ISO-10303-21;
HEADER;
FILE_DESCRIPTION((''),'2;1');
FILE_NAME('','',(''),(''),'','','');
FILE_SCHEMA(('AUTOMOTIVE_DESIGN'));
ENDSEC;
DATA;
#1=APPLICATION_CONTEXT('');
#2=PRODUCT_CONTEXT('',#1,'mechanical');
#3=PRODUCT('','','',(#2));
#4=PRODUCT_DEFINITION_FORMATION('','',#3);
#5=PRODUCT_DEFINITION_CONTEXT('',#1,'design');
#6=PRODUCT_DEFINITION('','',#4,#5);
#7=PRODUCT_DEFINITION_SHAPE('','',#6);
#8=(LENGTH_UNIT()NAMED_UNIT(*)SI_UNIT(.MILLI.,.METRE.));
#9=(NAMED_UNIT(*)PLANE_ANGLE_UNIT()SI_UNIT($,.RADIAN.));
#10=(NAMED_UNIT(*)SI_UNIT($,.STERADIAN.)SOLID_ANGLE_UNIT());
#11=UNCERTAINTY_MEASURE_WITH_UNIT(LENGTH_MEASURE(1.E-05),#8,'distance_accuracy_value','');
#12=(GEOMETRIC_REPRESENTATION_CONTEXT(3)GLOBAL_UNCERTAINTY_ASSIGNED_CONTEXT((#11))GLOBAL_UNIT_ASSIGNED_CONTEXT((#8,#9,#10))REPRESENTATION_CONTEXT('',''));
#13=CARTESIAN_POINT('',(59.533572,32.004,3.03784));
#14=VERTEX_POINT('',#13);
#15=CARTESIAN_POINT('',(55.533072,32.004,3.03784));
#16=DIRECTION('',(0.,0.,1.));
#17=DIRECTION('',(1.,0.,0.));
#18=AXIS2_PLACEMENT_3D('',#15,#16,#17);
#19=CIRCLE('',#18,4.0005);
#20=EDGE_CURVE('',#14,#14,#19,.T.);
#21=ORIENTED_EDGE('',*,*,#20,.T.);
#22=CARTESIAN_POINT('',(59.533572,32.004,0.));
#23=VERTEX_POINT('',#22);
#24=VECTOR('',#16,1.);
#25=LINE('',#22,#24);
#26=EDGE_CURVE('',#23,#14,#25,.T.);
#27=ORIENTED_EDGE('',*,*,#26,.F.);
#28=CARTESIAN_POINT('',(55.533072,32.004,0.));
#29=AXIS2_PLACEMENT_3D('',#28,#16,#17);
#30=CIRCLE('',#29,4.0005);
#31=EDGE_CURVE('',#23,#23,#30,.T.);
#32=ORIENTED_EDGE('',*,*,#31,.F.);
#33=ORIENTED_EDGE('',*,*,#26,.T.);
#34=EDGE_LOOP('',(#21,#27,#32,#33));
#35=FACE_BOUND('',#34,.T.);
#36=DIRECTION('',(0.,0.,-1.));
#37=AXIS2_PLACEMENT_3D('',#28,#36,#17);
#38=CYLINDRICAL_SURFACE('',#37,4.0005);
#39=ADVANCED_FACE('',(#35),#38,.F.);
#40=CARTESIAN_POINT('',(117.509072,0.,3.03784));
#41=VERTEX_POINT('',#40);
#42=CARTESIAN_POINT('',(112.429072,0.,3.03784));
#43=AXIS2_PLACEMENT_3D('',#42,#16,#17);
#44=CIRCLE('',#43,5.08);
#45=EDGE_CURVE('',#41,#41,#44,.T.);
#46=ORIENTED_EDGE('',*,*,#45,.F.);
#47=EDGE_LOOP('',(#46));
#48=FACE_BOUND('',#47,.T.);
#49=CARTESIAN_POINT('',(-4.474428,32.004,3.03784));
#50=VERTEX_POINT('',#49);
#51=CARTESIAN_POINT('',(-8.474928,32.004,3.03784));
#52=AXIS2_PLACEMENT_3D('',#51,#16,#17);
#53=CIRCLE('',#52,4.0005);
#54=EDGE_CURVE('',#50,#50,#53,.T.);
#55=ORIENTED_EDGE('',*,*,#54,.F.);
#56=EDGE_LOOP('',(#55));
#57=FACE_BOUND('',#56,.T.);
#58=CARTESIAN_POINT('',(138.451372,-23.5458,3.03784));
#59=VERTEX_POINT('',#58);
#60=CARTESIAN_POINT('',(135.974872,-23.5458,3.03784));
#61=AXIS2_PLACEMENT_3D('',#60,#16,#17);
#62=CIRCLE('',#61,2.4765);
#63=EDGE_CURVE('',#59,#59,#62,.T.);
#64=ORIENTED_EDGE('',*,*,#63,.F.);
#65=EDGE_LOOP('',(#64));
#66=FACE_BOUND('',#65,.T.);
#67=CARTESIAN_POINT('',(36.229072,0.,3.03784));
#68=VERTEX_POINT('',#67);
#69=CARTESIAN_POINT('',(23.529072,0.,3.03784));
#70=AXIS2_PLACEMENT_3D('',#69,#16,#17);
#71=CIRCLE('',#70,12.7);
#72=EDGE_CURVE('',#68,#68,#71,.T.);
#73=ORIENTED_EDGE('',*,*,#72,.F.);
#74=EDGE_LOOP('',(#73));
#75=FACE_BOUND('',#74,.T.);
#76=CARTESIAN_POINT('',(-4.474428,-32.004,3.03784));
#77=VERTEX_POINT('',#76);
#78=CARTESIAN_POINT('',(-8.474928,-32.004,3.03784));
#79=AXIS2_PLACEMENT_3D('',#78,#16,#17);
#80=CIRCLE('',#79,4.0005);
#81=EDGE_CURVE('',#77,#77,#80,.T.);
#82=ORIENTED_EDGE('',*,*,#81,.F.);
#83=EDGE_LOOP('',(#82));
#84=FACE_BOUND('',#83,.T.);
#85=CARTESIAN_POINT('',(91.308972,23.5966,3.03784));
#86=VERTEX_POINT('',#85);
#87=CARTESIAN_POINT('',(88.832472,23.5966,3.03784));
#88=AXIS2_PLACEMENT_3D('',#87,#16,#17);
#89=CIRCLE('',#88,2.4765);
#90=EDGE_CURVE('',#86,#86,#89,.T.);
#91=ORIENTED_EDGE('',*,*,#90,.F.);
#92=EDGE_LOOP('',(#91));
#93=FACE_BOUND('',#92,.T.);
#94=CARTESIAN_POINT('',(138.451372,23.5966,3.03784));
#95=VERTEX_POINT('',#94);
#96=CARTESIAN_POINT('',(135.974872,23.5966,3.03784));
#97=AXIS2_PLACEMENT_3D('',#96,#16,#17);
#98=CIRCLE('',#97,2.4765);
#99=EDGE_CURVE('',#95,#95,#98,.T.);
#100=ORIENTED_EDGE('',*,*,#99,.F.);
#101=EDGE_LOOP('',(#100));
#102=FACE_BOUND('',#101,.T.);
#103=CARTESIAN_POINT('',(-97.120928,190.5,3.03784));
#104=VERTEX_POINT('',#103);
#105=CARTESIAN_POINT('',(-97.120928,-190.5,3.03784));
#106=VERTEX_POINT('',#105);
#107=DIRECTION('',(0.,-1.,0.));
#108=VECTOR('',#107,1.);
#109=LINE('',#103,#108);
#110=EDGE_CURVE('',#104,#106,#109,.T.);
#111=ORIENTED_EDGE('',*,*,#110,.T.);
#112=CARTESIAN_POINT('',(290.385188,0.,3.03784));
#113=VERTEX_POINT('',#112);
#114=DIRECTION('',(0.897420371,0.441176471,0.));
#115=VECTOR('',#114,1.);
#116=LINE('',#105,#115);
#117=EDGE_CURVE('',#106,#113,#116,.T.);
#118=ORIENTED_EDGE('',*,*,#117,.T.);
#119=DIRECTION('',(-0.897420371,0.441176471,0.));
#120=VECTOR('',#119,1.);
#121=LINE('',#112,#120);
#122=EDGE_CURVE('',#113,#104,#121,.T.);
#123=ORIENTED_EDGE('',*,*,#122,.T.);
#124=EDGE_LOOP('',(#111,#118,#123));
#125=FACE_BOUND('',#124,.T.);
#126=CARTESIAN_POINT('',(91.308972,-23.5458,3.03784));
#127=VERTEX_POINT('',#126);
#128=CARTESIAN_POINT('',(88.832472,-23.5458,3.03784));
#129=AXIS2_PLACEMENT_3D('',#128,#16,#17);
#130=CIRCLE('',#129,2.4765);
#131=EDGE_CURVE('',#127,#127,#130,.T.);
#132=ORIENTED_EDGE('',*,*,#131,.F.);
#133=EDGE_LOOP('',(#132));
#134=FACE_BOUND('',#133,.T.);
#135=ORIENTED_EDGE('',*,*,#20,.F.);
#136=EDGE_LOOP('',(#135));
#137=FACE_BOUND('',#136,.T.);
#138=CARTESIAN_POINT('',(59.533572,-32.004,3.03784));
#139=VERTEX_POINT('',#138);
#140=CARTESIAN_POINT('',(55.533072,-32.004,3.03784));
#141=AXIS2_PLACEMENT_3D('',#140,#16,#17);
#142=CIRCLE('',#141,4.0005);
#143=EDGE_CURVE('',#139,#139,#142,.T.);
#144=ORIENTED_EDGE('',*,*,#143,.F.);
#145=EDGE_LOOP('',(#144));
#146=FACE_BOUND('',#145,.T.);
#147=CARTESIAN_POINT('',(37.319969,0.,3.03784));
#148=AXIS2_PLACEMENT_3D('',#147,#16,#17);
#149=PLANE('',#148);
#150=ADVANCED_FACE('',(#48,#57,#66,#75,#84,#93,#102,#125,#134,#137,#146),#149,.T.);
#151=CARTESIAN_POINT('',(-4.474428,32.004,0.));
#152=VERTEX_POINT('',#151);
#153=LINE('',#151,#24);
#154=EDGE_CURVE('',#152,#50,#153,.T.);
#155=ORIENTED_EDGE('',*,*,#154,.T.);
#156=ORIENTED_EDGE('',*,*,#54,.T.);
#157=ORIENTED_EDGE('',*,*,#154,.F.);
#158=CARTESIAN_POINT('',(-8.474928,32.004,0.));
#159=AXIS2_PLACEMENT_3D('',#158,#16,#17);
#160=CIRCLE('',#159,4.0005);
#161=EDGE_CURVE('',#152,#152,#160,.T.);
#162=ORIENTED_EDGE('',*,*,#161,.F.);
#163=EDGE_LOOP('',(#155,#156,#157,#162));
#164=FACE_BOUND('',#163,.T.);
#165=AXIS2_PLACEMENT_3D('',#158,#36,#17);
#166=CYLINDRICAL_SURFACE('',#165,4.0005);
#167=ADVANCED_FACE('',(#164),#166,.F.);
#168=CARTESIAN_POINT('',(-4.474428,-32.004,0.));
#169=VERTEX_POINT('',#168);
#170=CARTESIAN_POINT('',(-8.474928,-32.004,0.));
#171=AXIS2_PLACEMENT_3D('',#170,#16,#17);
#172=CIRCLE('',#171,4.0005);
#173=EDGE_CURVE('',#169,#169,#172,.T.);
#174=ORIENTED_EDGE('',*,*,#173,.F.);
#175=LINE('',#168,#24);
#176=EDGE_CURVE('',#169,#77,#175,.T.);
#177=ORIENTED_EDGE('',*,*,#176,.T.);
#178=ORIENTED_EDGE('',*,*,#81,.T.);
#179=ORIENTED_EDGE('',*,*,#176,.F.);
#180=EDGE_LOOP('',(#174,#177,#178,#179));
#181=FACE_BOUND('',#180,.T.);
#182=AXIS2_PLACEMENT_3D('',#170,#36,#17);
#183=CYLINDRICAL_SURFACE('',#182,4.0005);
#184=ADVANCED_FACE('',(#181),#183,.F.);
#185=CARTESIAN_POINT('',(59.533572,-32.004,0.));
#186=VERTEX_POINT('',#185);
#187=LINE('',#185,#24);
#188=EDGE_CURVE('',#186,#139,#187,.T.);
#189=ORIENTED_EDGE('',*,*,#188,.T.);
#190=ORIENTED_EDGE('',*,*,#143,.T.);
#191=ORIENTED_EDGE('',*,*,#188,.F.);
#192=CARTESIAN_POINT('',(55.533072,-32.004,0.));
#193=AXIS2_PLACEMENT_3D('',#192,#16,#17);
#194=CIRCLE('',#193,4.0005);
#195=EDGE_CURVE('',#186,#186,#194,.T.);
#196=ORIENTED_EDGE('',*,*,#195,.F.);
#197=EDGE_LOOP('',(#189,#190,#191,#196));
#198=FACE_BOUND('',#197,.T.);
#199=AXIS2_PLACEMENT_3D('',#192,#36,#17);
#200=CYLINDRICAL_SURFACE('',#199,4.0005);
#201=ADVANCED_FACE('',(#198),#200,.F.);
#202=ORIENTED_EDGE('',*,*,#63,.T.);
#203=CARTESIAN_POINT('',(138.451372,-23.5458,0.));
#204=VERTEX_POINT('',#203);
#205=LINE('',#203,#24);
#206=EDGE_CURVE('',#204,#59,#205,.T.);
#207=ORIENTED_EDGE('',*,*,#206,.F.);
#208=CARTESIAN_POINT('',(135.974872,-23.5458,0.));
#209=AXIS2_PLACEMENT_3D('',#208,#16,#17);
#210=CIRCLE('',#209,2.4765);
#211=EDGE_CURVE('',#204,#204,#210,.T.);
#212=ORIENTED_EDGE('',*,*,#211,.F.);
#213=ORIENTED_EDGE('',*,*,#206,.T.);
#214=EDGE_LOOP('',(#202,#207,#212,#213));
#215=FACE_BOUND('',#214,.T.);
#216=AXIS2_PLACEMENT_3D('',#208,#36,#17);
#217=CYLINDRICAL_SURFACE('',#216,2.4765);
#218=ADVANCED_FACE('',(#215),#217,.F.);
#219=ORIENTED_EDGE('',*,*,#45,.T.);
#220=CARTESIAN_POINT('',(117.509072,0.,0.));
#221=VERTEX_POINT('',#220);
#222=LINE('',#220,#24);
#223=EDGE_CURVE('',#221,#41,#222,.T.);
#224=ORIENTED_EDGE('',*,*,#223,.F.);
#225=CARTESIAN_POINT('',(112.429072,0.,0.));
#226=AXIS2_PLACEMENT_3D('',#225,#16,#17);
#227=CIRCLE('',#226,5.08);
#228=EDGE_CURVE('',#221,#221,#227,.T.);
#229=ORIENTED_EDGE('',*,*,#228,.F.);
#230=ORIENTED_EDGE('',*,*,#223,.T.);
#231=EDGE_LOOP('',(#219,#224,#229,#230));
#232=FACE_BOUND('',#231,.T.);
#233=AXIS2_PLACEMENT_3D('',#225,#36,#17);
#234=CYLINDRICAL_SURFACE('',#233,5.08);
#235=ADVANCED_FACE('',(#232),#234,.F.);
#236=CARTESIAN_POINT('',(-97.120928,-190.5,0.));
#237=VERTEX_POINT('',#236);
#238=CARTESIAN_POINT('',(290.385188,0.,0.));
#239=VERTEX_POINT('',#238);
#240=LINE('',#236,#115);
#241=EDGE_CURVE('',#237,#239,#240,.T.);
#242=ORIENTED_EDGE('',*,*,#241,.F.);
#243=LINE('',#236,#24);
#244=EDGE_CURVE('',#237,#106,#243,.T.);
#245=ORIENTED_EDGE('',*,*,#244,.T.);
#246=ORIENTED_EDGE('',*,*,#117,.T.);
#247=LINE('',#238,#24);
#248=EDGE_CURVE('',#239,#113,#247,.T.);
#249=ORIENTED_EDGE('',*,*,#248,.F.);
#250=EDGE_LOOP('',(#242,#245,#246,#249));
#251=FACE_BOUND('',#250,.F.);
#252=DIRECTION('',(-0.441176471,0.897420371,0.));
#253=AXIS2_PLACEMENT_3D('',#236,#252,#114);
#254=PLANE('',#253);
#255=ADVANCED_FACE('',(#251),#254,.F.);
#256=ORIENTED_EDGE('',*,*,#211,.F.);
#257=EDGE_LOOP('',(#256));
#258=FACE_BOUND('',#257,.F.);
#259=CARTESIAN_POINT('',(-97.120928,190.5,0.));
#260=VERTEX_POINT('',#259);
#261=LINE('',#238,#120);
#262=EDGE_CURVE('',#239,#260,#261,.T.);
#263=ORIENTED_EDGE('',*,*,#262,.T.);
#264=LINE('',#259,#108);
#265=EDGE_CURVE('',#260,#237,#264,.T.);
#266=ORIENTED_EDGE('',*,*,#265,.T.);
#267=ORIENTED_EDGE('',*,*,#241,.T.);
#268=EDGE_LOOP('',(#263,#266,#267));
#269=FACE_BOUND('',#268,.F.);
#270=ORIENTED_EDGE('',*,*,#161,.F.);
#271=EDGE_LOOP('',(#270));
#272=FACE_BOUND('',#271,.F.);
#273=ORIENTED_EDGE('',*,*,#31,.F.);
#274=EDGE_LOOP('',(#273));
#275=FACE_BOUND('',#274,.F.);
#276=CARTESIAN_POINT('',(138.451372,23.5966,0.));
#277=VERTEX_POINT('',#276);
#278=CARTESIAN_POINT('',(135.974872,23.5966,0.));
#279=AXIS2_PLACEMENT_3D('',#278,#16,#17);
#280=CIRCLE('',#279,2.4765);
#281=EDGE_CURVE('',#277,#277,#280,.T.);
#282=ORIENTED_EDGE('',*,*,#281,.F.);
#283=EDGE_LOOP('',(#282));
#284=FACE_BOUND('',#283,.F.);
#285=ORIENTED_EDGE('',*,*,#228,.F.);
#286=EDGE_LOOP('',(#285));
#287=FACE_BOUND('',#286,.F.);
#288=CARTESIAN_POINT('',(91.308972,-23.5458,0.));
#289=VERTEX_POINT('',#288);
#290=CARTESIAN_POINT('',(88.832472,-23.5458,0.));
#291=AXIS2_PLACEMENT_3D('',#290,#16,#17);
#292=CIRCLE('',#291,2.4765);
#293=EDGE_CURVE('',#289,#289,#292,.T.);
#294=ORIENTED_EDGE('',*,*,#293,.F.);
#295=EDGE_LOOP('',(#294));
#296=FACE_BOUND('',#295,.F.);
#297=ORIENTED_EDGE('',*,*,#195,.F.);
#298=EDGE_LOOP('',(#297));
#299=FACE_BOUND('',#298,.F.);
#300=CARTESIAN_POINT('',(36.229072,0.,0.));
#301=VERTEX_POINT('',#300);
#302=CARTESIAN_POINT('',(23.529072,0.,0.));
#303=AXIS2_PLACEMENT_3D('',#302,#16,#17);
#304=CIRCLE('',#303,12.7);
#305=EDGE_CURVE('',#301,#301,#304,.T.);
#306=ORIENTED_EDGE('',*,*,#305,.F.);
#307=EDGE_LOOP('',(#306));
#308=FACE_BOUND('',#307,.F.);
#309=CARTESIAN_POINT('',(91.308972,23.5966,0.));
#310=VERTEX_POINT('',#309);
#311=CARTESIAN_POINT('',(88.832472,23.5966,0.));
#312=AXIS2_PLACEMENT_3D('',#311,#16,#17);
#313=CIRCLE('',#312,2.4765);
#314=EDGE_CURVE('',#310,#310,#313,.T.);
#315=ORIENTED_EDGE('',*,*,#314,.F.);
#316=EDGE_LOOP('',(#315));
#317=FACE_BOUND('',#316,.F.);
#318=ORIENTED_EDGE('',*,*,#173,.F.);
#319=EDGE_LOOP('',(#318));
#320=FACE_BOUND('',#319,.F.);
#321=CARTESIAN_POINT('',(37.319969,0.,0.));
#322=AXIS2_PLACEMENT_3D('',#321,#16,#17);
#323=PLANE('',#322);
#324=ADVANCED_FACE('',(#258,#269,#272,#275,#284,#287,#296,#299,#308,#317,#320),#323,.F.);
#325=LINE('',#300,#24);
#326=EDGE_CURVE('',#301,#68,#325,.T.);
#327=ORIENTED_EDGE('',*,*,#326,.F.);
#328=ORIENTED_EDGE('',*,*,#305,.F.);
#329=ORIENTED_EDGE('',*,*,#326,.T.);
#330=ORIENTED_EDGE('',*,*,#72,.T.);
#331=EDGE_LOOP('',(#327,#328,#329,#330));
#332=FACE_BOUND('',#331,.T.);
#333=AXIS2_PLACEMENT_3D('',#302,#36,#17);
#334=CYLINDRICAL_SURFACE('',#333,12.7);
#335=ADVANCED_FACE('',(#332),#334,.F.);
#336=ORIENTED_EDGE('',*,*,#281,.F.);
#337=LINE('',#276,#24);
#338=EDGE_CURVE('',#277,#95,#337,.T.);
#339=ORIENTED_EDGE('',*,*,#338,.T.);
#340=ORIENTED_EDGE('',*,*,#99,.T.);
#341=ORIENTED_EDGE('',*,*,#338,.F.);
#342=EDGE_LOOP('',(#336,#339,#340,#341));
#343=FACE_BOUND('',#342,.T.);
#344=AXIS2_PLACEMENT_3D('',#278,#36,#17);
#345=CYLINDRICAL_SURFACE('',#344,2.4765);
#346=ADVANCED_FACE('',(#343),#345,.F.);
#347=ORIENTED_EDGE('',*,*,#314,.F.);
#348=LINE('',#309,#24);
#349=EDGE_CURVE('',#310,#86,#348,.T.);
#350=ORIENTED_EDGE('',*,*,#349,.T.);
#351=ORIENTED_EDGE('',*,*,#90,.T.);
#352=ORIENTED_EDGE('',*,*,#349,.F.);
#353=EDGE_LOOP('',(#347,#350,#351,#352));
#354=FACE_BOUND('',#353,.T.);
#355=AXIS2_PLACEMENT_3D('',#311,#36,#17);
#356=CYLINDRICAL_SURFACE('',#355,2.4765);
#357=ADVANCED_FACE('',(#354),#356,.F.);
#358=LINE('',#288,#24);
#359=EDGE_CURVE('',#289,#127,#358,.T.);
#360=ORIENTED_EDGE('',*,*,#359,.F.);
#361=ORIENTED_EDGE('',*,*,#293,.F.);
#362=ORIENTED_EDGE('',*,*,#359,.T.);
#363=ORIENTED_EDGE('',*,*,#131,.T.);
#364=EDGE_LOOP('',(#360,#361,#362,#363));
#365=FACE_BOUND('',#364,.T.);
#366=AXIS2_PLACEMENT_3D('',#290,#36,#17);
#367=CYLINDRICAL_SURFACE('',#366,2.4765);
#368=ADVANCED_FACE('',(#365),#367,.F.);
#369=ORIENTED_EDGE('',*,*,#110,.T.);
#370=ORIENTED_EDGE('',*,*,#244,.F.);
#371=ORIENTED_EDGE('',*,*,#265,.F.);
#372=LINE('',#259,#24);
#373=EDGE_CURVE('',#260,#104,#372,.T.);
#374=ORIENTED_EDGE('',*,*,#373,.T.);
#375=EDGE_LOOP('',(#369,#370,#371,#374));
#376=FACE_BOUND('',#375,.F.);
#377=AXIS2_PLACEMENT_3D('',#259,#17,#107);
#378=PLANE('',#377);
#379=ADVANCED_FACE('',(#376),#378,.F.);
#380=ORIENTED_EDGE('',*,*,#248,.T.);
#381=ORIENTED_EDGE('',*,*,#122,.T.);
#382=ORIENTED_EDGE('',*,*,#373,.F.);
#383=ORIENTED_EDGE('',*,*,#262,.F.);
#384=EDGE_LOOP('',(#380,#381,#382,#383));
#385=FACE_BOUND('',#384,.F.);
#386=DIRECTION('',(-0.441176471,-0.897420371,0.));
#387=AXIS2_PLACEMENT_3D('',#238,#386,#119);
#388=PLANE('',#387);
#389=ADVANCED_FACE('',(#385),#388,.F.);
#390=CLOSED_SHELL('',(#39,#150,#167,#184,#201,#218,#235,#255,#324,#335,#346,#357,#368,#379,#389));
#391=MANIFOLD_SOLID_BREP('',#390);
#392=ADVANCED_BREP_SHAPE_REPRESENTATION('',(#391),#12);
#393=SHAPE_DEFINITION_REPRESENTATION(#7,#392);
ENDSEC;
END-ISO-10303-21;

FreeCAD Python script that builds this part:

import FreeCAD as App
import Part
import Sketcher
Q = App.Units.Quantity


def add_polygon(sketch, points):
    """Adds a closed chain of lines whose ends are joined by coincident constraints."""
    first, n = sketch.GeometryCount, len(points)
    for a, b in zip(points, points[1:] + points[:1]):
        sketch.addGeometry(Part.LineSegment(App.Vector(*a, 0), App.Vector(*b, 0)), False)
    for i in range(n):
        sketch.addConstraint(Sketcher.Constraint("Coincident", first + i, 2, first + (i + 1) % n, 1))

doc = App.newDocument("Part")
params = doc.addObject("Spreadsheet::Sheet", "Params")
for row, (alias, value) in enumerate([
    ("sketch1_diameter", "1 in"),
    ("sketch1_diameter2", "0.4 in"),
    ("sketch1_height", "15 in"),
    ("sketch1_length", "17 in"),
    ("sketch1_diameter3", "0.315 in"),
    ("pad1_length", "0.1196 in"),
], start=1):
    params.set(f"A{row}", alias)
    params.set(f"B{row}", "=" + value)
    params.setAlias(f"B{row}", alias)

body = doc.addObject("PartDesign::Body", "Body")

# Sketch on XY plane
sketch1 = body.newObject("Sketcher::SketchObject", "Sketch")
sketch1.AttachmentSupport = (doc.getObject("XY_Plane"), [""])
sketch1.MapMode = "FlatFace"
add_polygon(sketch1, [(-97.120928, -190.5), (290.385188, 0), (-97.120928, 190.5)])  # lines 0-2
sketch1.addGeometry(Part.Circle(App.Vector(-8.474928, -32.004, 0), App.Vector(0, 0, 1), 4.0005), False)  # 3
sketch1.addGeometry(Part.Circle(App.Vector(55.533072, -32.004, 0), App.Vector(0, 0, 1), 4.0005), False)  # 4
sketch1.addGeometry(Part.Circle(App.Vector(88.832472, -23.5458, 0), App.Vector(0, 0, 1), 2.4765), False)  # 5
sketch1.addGeometry(Part.Circle(App.Vector(135.974872, -23.5458, 0), App.Vector(0, 0, 1), 2.4765), False)  # 6
sketch1.addGeometry(Part.Circle(App.Vector(23.529072, 0, 0), App.Vector(0, 0, 1), 12.7), False)  # 7
sketch1.addGeometry(Part.Circle(App.Vector(-8.474928, 32.004, 0), App.Vector(0, 0, 1), 4.0005), False)  # 8
sketch1.addGeometry(Part.Circle(App.Vector(55.533072, 32.004, 0), App.Vector(0, 0, 1), 4.0005), False)  # 9
sketch1.addGeometry(Part.Circle(App.Vector(112.429072, 0, 0), App.Vector(0, 0, 1), 5.08), False)  # 10
sketch1.addGeometry(Part.Circle(App.Vector(88.832472, 23.5966, 0), App.Vector(0, 0, 1), 2.4765), False)  # 11
sketch1.addGeometry(Part.Circle(App.Vector(135.974872, 23.5966, 0), App.Vector(0, 0, 1), 2.4765), False)  # 12
sketch1.addConstraint(Sketcher.Constraint("Vertical", 2))
sketch1.addConstraint(Sketcher.Constraint("Equal", 3, 4))
sketch1.addConstraint(Sketcher.Constraint("Equal", 5, 6))
sketch1.addConstraint(Sketcher.Constraint("Equal", 4, 8))
sketch1.addConstraint(Sketcher.Constraint("Equal", 8, 9))
sketch1.addConstraint(Sketcher.Constraint("Equal", 6, 11))
sketch1.addConstraint(Sketcher.Constraint("Equal", 11, 12))
sketch1.addConstraint(Sketcher.Constraint("Symmetric", 3, 3, 8, 3, -1))
sketch1.addConstraint(Sketcher.Constraint("Symmetric", 4, 3, 9, 3, -1))
sketch1.addConstraint(Sketcher.Constraint("PointOnObject", 7, 3, -1))
sketch1.addConstraint(Sketcher.Constraint("PointOnObject", 10, 3, -1))
sketch1.addConstraint(Sketcher.Constraint("PointOnObject", 0, 2, -1))
sketch1.addConstraint(Sketcher.Constraint("Horizontal", 3, 3, 4, 3))
sketch1.addConstraint(Sketcher.Constraint("Horizontal", 5, 3, 6, 3))
sketch1.addConstraint(Sketcher.Constraint("Horizontal", 11, 3, 12, 3))
sketch1.addConstraint(Sketcher.Constraint("Vertical", 5, 3, 11, 3))
sketch1.addConstraint(Sketcher.Constraint("Vertical", 6, 3, 12, 3))
sketch1.addConstraint(Sketcher.Constraint("Equal", 0, 1))
sketch1.addConstraint(Sketcher.Constraint("Diameter", 7, Q("1 in")))
sketch1.addConstraint(Sketcher.Constraint("Diameter", 10, Q("0.4 in")))
sketch1.addConstraint(Sketcher.Constraint("DistanceY", 2, 2, 2, 1, Q("15 in")))
sketch1.addConstraint(Sketcher.Constraint("Distance", 0, Q("17 in")))
sketch1.addConstraint(Sketcher.Constraint("Diameter", 3, Q("0.315 in")))
sketch1.addConstraint(Sketcher.Constraint("Diameter", 5, Q("0.195 in")))
sketch1.addConstraint(Sketcher.Constraint("DistanceX", 7, 3, 10, 3, Q("3.5 in")))
sketch1.addConstraint(Sketcher.Constraint("DistanceY", 3, 3, -1, 1, Q("1.26 in")))
sketch1.addConstraint(Sketcher.Constraint("DistanceX", 3, 3, 4, 3, Q("2.52 in")))
sketch1.addConstraint(Sketcher.Constraint("DistanceX", 3, 3, 7, 3, Q("1.26 in")))
sketch1.addConstraint(Sketcher.Constraint("DistanceX", 1, 2, 8, 3, Q("3.49 in")))
sketch1.addConstraint(Sketcher.Constraint("DistanceY", 5, 3, -1, 1, Q("0.927 in")))
sketch1.addConstraint(Sketcher.Constraint("DistanceY", -1, 1, 11, 3, Q("0.929 in")))
sketch1.addConstraint(Sketcher.Constraint("DistanceX", 4, 3, 5, 3, Q("1.311 in")))
sketch1.addConstraint(Sketcher.Constraint("DistanceX", 5, 3, 6, 3, Q("1.856 in")))
sketch1.addConstraint(Sketcher.Constraint("DistanceX", -1, 1, 4, 3, 55.533072))
sketch1.setExpression("Constraints[21]", "Params.sketch1_diameter")
sketch1.setExpression("Constraints[22]", "Params.sketch1_diameter2")
sketch1.setExpression("Constraints[23]", "Params.sketch1_height")
sketch1.setExpression("Constraints[24]", "Params.sketch1_length")
sketch1.setExpression("Constraints[25]", "Params.sketch1_diameter3")
pad1 = body.newObject("PartDesign::Pad", "Pad")
pad1.Profile = sketch1
pad1.setExpression("Length", "Params.pad1_length")

doc.recompute()
